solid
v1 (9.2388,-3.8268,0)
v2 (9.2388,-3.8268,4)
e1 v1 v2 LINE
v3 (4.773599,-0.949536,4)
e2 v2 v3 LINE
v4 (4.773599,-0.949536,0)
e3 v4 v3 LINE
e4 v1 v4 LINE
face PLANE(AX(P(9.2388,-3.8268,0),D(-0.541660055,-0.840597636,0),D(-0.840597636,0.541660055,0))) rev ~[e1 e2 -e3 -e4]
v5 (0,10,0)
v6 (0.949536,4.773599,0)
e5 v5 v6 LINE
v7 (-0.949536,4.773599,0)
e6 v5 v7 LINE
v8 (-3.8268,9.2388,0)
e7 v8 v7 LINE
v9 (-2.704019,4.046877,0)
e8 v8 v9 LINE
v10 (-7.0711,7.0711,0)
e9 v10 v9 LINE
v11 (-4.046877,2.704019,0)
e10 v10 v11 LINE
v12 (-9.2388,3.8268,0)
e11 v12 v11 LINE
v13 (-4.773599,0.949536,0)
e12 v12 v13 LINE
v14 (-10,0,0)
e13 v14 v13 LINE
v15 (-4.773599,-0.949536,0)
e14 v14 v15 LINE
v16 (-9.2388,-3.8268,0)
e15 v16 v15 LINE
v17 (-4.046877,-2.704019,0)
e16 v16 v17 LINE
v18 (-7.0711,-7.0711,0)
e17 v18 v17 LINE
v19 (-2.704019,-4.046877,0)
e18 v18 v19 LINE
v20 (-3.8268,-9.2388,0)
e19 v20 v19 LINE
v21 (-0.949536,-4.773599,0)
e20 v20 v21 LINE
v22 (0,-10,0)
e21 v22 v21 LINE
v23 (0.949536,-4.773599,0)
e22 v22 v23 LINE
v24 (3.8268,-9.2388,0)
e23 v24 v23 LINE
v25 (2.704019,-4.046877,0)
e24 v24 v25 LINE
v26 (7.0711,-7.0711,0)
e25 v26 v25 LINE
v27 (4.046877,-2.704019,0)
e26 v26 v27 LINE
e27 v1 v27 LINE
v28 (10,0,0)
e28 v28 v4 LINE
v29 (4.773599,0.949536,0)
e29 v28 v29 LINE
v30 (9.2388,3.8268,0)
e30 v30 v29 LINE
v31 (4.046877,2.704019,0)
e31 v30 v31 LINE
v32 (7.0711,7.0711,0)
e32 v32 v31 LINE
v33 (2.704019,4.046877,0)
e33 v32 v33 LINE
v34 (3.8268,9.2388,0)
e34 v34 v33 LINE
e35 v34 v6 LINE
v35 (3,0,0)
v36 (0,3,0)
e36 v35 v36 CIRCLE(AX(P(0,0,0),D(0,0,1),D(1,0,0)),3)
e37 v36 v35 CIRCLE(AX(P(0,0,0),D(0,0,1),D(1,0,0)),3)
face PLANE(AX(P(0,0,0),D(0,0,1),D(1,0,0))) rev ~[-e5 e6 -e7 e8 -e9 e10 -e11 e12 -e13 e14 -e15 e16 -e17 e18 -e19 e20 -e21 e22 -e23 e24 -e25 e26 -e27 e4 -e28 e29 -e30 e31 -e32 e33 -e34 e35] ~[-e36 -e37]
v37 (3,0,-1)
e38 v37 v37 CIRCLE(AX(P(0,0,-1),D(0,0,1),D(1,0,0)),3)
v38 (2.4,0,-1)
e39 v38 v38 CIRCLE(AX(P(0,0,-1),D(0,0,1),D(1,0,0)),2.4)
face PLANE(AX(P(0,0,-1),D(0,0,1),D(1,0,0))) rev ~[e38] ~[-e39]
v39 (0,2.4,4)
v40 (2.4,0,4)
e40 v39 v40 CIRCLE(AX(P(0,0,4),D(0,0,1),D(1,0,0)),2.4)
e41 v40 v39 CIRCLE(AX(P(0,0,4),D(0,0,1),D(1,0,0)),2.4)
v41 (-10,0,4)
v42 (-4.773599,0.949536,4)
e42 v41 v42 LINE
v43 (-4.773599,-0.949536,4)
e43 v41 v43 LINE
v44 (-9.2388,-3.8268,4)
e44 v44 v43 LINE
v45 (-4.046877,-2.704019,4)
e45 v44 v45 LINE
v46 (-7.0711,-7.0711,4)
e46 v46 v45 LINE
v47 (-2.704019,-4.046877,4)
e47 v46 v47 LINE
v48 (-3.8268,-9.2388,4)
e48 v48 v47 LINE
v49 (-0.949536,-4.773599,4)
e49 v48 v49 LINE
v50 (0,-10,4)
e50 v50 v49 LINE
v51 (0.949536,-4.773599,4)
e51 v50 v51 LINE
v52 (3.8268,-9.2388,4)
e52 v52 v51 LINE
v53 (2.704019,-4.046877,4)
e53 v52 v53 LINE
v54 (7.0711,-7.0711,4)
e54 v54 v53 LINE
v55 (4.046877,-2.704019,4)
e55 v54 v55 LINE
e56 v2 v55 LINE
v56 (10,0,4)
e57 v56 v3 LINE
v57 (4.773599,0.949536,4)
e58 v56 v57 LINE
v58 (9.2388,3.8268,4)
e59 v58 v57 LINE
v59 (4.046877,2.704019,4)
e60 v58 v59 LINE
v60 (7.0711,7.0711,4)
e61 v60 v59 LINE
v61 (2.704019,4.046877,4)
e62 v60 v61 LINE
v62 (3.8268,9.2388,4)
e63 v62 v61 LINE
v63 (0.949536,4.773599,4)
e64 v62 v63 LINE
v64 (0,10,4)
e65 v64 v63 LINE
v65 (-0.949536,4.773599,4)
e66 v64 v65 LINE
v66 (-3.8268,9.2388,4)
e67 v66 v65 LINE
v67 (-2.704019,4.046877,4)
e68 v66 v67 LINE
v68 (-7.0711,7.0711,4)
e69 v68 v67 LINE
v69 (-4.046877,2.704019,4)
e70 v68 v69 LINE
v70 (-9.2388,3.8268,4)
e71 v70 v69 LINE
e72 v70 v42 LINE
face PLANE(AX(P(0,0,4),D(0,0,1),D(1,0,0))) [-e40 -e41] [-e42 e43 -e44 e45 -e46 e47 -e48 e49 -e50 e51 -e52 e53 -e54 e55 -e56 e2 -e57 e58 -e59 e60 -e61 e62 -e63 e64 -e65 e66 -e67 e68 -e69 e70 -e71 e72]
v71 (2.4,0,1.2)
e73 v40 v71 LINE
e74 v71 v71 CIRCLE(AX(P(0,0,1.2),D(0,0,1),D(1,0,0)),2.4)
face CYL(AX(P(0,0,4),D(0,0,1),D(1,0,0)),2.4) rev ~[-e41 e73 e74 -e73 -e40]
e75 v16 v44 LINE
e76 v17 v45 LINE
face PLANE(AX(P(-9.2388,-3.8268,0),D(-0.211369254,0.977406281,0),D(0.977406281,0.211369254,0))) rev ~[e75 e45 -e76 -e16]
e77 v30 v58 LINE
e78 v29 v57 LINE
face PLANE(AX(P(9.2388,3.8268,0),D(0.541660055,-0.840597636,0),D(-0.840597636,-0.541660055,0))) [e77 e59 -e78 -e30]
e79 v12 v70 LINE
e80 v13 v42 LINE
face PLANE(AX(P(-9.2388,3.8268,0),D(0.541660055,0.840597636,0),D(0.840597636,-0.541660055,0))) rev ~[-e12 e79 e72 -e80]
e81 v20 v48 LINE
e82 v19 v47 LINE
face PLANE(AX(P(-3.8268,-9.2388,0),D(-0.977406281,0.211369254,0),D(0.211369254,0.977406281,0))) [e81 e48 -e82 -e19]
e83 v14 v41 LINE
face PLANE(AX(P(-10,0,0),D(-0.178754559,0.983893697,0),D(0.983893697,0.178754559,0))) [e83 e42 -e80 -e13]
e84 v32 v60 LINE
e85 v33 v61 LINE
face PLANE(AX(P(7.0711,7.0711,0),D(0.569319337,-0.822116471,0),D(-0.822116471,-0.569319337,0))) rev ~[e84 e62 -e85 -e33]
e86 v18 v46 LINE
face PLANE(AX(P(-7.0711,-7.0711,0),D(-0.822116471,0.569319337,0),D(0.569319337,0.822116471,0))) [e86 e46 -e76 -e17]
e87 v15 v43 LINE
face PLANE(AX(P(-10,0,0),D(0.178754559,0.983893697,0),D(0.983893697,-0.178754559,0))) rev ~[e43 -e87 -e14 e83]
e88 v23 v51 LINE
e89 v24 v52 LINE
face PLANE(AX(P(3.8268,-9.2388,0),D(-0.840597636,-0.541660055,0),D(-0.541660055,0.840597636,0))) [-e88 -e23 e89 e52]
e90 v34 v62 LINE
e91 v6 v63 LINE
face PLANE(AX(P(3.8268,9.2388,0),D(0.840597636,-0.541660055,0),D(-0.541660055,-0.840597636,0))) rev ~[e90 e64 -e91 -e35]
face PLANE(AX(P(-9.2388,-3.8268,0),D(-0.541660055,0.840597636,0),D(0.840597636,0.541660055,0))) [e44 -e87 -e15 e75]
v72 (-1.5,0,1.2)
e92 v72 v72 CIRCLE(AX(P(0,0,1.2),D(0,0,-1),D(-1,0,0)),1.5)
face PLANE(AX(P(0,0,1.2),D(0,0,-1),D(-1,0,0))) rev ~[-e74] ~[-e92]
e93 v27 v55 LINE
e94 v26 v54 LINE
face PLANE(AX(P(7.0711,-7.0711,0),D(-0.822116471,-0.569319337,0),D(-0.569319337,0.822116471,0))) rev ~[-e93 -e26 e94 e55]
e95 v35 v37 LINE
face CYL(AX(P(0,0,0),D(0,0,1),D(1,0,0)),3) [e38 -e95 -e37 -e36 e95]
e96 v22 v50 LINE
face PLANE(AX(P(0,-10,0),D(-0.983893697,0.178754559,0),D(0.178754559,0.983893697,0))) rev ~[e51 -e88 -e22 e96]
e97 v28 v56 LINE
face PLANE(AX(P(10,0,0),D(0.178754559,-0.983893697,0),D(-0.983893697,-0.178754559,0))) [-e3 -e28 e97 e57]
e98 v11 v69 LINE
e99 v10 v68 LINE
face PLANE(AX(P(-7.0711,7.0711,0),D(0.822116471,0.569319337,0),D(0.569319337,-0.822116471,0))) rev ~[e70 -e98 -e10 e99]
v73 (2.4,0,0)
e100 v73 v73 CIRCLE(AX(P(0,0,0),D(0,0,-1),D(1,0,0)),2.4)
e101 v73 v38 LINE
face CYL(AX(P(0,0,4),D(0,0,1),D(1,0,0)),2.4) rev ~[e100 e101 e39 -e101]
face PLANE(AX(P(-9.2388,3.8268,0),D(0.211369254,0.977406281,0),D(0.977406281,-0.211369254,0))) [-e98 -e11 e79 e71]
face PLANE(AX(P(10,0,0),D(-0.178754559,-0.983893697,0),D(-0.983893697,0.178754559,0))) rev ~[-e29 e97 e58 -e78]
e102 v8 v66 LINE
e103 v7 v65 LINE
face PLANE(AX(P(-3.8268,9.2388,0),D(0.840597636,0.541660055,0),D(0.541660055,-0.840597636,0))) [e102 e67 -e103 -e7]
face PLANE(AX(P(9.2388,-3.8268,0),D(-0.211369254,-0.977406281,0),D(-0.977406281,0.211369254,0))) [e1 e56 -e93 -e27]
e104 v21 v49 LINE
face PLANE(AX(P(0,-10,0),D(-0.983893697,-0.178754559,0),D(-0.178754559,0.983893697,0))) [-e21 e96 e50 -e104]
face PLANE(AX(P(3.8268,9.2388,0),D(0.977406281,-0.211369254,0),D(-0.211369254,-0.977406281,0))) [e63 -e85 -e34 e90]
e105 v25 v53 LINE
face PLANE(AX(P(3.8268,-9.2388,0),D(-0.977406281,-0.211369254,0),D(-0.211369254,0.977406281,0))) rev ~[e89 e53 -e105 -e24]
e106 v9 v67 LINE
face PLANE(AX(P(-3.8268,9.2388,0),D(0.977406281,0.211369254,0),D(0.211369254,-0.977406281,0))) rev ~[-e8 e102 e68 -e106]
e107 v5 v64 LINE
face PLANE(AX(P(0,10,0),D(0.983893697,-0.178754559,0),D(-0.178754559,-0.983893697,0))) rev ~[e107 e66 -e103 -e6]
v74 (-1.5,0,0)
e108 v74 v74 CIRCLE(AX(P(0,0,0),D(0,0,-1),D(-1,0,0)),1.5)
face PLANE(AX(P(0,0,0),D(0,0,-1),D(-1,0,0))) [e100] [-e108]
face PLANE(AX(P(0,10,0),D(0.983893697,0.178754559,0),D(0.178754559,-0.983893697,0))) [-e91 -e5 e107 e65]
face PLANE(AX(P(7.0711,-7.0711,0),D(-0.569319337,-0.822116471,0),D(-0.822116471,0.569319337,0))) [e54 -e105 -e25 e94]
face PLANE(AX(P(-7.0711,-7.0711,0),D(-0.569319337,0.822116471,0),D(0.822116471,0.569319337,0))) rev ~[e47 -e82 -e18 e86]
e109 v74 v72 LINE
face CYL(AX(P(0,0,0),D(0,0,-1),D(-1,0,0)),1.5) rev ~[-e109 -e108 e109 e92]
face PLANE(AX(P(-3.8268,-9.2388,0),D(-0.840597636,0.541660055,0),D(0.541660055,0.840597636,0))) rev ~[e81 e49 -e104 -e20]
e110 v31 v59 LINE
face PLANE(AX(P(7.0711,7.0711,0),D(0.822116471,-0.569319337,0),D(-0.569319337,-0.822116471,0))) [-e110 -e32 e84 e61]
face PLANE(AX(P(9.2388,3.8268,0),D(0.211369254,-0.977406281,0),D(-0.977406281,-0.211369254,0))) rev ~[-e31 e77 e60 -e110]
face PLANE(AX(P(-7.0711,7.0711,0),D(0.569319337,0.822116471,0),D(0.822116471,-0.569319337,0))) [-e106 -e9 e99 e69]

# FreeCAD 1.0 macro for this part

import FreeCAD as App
import Part
import Sketcher
from FreeCAD import Vector
Q = App.Units.Quantity


def add_polygon(sketch, points):
    """Adds a closed chain of lines whose ends are joined by coincident constraints."""
    first, n = sketch.GeometryCount, len(points)
    for a, b in zip(points, points[1:] + points[:1]):
        sketch.addGeometry(Part.LineSegment(App.Vector(*a, 0), App.Vector(*b, 0)), False)
    for i in range(n):
        sketch.addConstraint(Sketcher.Constraint("Coincident", first + i, 2, first + (i + 1) % n, 1))

doc = App.newDocument("Part")
params = doc.addObject("Spreadsheet::Sheet", "Params")
for row, (alias, value) in enumerate([
    ("sketch1_diameter", "6 mm"),
    ("sketch1_diameter2", "4.5 mm"),
    ("pad1_length", "1 mm"),
    ("sketch2_diameter", "4.5 mm"),
    ("pad2_length", "4 mm"),
    ("sketch3_diameter", "4.7 mm"),
    ("sketch4_diameter", "4.8 mm"),
    ("sketch5_diameter", "3 mm"),
    ("sketch5_diameter2", "4.8 mm"),
    ("pad3_length", "1.2 mm"),
], start=1):
    params.set(f"A{row}", alias)
    params.set(f"B{row}", "=" + value)
    params.setAlias(f"B{row}", alias)

body = doc.addObject("PartDesign::Body", "Body")

# Sketch on XY plane
sketch1 = body.newObject("Sketcher::SketchObject", "Sketch")
sketch1.AttachmentSupport = (doc.getObject("XY_Plane"), [""])
sketch1.MapMode = "FlatFace"
sketch1.addGeometry(Part.Circle(Vector(0, 0, 0), Vector(0, 0, 1), 3), False)
sketch1.addGeometry(Part.Circle(Vector(0, 0, 0), Vector(0, 0, 1), 2.2), False)
sketch1.addConstraint(Sketcher.Constraint("Coincident", 0, 3, -1, 1))
sketch1.addConstraint(Sketcher.Constraint("Coincident", 1, 3, -1, 1))
sketch1.addConstraint(Sketcher.Constraint("Diameter", 0, Q("6 mm")))
sketch1.addConstraint(Sketcher.Constraint("Diameter", 1, Q("4.5 mm")))
sketch1.setExpression("Constraints[2]", "Params.sketch1_diameter")
sketch1.setExpression("Constraints[3]", "Params.sketch1_diameter2")
pad1 = body.newObject("PartDesign::Pad", "Pad")
pad1.Profile = sketch1
pad1.setExpression("Length", "Params.pad1_length")
pad1.Reversed = True

# Sketch on XY plane
sketch2 = body.newObject("Sketcher::SketchObject", "Sketch001")
sketch2.AttachmentSupport = (doc.getObject("XY_Plane"), [""])
sketch2.MapMode = "FlatFace"
add_polygon(sketch2, [(0.9, 4.8), (0, 10), (-0.9, 4.8), (-3.8, 9.2), (-2.7, 4), (-7.1, 7.1), (-4, 2.7), (-9.2, 3.8), (-4.8, 0.9), (-10, 0), (-4.8, -0.9), (-9.2, -3.8), (-4, -2.7), (-7.1, -7.1), (-2.7, -4), (-3.8, -9.2), (-0.9, -4.8), (0, -10), (0.9, -4.8), (3.8, -9.2), (2.7, -4), (7.1, -7.1), (4, -2.7), (9.2, -3.8), (4.8, -0.9), (10, 0), (4.8, 0.9), (9.2, 3.8), (4, 2.7), (7.1, 7.1), (2.7, 4), (3.8, 9.2)])  # lines 0-31
sketch2.addGeometry(Part.Circle(Vector(0, 0, 0), Vector(0, 0, 1), 2.2), False)  # 32
sketch2.addConstraint(Sketcher.Constraint("Coincident", 32, 3, -1, 1))
sketch2.addConstraint(Sketcher.Constraint("Symmetric", 0, 2, 16, 2, -1, 1))
sketch2.addConstraint(Sketcher.Constraint("Symmetric", 1, 2, 17, 2, -1, 1))
sketch2.addConstraint(Sketcher.Constraint("Symmetric", 2, 2, 18, 2, -1, 1))
sketch2.addConstraint(Sketcher.Constraint("Symmetric", 3, 2, 19, 2, -1, 1))
sketch2.addConstraint(Sketcher.Constraint("Symmetric", 4, 2, 20, 2, -1, 1))
sketch2.addConstraint(Sketcher.Constraint("Symmetric", 5, 2, 21, 2, -1, 1))
sketch2.addConstraint(Sketcher.Constraint("Symmetric", 6, 2, 22, 2, -1, 1))
sketch2.addConstraint(Sketcher.Constraint("Symmetric", 7, 2, 23, 2, -1, 1))
sketch2.addConstraint(Sketcher.Constraint("Symmetric", 8, 2, 24, 2, -1, 1))
sketch2.addConstraint(Sketcher.Constraint("Symmetric", 9, 2, 25, 2, -1, 1))
sketch2.addConstraint(Sketcher.Constraint("Symmetric", 10, 2, 26, 2, -1, 1))
sketch2.addConstraint(Sketcher.Constraint("Symmetric", 11, 2, 27, 2, -1, 1))
sketch2.addConstraint(Sketcher.Constraint("Symmetric", 12, 2, 28, 2, -1, 1))
sketch2.addConstraint(Sketcher.Constraint("Symmetric", 13, 2, 29, 2, -1, 1))
sketch2.addConstraint(Sketcher.Constraint("Symmetric", 14, 2, 30, 2, -1, 1))
sketch2.addConstraint(Sketcher.Constraint("Symmetric", 15, 2, 31, 2, -1, 1))
sketch2.addConstraint(Sketcher.Constraint("Symmetric", 15, 2, 17, 2, -2))
sketch2.addConstraint(Sketcher.Constraint("Symmetric", 14, 2, 18, 2, -2))
sketch2.addConstraint(Sketcher.Constraint("Symmetric", 13, 2, 19, 2, -2))
sketch2.addConstraint(Sketcher.Constraint("Symmetric", 12, 2, 20, 2, -2))
sketch2.addConstraint(Sketcher.Constraint("Symmetric", 11, 2, 21, 2, -2))
sketch2.addConstraint(Sketcher.Constraint("Symmetric", 10, 2, 22, 2, -2))
sketch2.addConstraint(Sketcher.Constraint("Symmetric", 9, 2, 23, 2, -2))
sketch2.addConstraint(Sketcher.Constraint("PointOnObject", 0, 2, -2))
sketch2.addConstraint(Sketcher.Constraint("PointOnObject", 8, 2, -1))
sketch2.addConstraint(Sketcher.Constraint("Perpendicular", 0, 8))
sketch2.addConstraint(Sketcher.Constraint("Perpendicular", 2, 10))
sketch2.addConstraint(Sketcher.Constraint("Perpendicular", 3, 11))
sketch2.addConstraint(Sketcher.Constraint("Perpendicular", 4, 12))
sketch2.addConstraint(Sketcher.Constraint("Equal", 1, 2))
sketch2.addConstraint(Sketcher.Constraint("Equal", 2, 3))
sketch2.addConstraint(Sketcher.Constraint("Equal", 3, 4))
sketch2.addConstraint(Sketcher.Constraint("Equal", 4, 5))
sketch2.addConstraint(Sketcher.Constraint("Equal", 5, 6))
sketch2.addConstraint(Sketcher.Constraint("Equal", 6, 7))
sketch2.addConstraint(Sketcher.Constraint("Equal", 7, 8))
sketch2.addConstraint(Sketcher.Constraint("Diameter", 32, Q("4.5 mm")))
sketch2.addConstraint(Sketcher.Constraint("DistanceY", -1, 1, 0, 2, Q("10 mm")))
sketch2.addConstraint(Sketcher.Constraint("DistanceX", 5, 2, 2, 2, Q("0.22 mm")))
sketch2.addConstraint(Sketcher.Constraint("Distance", 0, Q("5.312 mm")))
sketch2.addConstraint(Sketcher.Constraint("DistanceX", 3, 2, -1, 1, Q("2.704 mm")))
sketch2.addConstraint(Sketcher.Constraint("DistanceX", 4, 2, -1, 1, Q("7.071 mm")))
sketch2.setExpression("Constraints[69]", "Params.sketch2_diameter")
pad2 = body.newObject("PartDesign::Pad", "Pad001")
pad2.Profile = sketch2
pad2.setExpression("Length", "Params.pad2_length")

# Sketch on XY plane
sketch3 = body.newObject("Sketcher::SketchObject", "Sketch002")
sketch3.AttachmentSupport = (doc.getObject("XY_Plane"), [""])
sketch3.MapMode = "FlatFace"
sketch3.AttachmentOffset = App.Placement(Vector(0, 0, 4), App.Rotation())
sketch3.addGeometry(Part.Circle(Vector(0, 0, 0), Vector(0, 0, 1), 2.4), False)
sketch3.addConstraint(Sketcher.Constraint("Coincident", 0, 3, -1, 1))
sketch3.addConstraint(Sketcher.Constraint("Diameter", 0, Q("4.7 mm")))
sketch3.setExpression("Constraints[1]", "Params.sketch3_diameter")
pocket1 = body.newObject("PartDesign::Pocket", "Pocket")
pocket1.Profile = sketch3
pocket1.Type = "ThroughAll"

# Sketch on XY plane
sketch4 = body.newObject("Sketcher::SketchObject", "Sketch003")
sketch4.AttachmentSupport = (doc.getObject("XY_Plane"), [""])
sketch4.MapMode = "FlatFace"
sketch4.AttachmentOffset = App.Placement(Vector(0, 0, 4), App.Rotation())
sketch4.addGeometry(Part.Circle(Vector(0, 0, 0), Vector(0, 0, 1), 2.4), False)
sketch4.addConstraint(Sketcher.Constraint("Coincident", 0, 3, -1, 1))
sketch4.addConstraint(Sketcher.Constraint("Diameter", 0, Q("4.8 mm")))
sketch4.setExpression("Constraints[1]", "Params.sketch4_diameter")
pocket2 = body.newObject("PartDesign::Pocket", "Pocket001")
pocket2.Profile = sketch4
pocket2.Type = "ThroughAll"

# Sketch on XY plane
sketch5 = body.newObject("Sketcher::SketchObject", "Sketch004")
sketch5.AttachmentSupport = (doc.getObject("XY_Plane"), [""])
sketch5.MapMode = "FlatFace"
sketch5.addGeometry(Part.Circle(Vector(0, 0, 0), Vector(0, 0, 1), 2.4), False)
sketch5.addGeometry(Part.Circle(Vector(0, 0, 0), Vector(0, 0, 1), 1.5), False)
sketch5.addConstraint(Sketcher.Constraint("Coincident", 0, 3, -1, 1))
sketch5.addConstraint(Sketcher.Constraint("Coincident", 1, 3, -1, 1))
sketch5.addConstraint(Sketcher.Constraint("Diameter", 1, Q("3 mm")))
sketch5.addConstraint(Sketcher.Constraint("Diameter", 0, Q("4.8 mm")))
sketch5.setExpression("Constraints[2]", "Params.sketch5_diameter")
sketch5.setExpression("Constraints[3]", "Params.sketch5_diameter2")
pad3 = body.newObject("PartDesign::Pad", "Pad002")
pad3.Profile = sketch5
pad3.setExpression("Length", "Params.pad3_length")

doc.recompute()
